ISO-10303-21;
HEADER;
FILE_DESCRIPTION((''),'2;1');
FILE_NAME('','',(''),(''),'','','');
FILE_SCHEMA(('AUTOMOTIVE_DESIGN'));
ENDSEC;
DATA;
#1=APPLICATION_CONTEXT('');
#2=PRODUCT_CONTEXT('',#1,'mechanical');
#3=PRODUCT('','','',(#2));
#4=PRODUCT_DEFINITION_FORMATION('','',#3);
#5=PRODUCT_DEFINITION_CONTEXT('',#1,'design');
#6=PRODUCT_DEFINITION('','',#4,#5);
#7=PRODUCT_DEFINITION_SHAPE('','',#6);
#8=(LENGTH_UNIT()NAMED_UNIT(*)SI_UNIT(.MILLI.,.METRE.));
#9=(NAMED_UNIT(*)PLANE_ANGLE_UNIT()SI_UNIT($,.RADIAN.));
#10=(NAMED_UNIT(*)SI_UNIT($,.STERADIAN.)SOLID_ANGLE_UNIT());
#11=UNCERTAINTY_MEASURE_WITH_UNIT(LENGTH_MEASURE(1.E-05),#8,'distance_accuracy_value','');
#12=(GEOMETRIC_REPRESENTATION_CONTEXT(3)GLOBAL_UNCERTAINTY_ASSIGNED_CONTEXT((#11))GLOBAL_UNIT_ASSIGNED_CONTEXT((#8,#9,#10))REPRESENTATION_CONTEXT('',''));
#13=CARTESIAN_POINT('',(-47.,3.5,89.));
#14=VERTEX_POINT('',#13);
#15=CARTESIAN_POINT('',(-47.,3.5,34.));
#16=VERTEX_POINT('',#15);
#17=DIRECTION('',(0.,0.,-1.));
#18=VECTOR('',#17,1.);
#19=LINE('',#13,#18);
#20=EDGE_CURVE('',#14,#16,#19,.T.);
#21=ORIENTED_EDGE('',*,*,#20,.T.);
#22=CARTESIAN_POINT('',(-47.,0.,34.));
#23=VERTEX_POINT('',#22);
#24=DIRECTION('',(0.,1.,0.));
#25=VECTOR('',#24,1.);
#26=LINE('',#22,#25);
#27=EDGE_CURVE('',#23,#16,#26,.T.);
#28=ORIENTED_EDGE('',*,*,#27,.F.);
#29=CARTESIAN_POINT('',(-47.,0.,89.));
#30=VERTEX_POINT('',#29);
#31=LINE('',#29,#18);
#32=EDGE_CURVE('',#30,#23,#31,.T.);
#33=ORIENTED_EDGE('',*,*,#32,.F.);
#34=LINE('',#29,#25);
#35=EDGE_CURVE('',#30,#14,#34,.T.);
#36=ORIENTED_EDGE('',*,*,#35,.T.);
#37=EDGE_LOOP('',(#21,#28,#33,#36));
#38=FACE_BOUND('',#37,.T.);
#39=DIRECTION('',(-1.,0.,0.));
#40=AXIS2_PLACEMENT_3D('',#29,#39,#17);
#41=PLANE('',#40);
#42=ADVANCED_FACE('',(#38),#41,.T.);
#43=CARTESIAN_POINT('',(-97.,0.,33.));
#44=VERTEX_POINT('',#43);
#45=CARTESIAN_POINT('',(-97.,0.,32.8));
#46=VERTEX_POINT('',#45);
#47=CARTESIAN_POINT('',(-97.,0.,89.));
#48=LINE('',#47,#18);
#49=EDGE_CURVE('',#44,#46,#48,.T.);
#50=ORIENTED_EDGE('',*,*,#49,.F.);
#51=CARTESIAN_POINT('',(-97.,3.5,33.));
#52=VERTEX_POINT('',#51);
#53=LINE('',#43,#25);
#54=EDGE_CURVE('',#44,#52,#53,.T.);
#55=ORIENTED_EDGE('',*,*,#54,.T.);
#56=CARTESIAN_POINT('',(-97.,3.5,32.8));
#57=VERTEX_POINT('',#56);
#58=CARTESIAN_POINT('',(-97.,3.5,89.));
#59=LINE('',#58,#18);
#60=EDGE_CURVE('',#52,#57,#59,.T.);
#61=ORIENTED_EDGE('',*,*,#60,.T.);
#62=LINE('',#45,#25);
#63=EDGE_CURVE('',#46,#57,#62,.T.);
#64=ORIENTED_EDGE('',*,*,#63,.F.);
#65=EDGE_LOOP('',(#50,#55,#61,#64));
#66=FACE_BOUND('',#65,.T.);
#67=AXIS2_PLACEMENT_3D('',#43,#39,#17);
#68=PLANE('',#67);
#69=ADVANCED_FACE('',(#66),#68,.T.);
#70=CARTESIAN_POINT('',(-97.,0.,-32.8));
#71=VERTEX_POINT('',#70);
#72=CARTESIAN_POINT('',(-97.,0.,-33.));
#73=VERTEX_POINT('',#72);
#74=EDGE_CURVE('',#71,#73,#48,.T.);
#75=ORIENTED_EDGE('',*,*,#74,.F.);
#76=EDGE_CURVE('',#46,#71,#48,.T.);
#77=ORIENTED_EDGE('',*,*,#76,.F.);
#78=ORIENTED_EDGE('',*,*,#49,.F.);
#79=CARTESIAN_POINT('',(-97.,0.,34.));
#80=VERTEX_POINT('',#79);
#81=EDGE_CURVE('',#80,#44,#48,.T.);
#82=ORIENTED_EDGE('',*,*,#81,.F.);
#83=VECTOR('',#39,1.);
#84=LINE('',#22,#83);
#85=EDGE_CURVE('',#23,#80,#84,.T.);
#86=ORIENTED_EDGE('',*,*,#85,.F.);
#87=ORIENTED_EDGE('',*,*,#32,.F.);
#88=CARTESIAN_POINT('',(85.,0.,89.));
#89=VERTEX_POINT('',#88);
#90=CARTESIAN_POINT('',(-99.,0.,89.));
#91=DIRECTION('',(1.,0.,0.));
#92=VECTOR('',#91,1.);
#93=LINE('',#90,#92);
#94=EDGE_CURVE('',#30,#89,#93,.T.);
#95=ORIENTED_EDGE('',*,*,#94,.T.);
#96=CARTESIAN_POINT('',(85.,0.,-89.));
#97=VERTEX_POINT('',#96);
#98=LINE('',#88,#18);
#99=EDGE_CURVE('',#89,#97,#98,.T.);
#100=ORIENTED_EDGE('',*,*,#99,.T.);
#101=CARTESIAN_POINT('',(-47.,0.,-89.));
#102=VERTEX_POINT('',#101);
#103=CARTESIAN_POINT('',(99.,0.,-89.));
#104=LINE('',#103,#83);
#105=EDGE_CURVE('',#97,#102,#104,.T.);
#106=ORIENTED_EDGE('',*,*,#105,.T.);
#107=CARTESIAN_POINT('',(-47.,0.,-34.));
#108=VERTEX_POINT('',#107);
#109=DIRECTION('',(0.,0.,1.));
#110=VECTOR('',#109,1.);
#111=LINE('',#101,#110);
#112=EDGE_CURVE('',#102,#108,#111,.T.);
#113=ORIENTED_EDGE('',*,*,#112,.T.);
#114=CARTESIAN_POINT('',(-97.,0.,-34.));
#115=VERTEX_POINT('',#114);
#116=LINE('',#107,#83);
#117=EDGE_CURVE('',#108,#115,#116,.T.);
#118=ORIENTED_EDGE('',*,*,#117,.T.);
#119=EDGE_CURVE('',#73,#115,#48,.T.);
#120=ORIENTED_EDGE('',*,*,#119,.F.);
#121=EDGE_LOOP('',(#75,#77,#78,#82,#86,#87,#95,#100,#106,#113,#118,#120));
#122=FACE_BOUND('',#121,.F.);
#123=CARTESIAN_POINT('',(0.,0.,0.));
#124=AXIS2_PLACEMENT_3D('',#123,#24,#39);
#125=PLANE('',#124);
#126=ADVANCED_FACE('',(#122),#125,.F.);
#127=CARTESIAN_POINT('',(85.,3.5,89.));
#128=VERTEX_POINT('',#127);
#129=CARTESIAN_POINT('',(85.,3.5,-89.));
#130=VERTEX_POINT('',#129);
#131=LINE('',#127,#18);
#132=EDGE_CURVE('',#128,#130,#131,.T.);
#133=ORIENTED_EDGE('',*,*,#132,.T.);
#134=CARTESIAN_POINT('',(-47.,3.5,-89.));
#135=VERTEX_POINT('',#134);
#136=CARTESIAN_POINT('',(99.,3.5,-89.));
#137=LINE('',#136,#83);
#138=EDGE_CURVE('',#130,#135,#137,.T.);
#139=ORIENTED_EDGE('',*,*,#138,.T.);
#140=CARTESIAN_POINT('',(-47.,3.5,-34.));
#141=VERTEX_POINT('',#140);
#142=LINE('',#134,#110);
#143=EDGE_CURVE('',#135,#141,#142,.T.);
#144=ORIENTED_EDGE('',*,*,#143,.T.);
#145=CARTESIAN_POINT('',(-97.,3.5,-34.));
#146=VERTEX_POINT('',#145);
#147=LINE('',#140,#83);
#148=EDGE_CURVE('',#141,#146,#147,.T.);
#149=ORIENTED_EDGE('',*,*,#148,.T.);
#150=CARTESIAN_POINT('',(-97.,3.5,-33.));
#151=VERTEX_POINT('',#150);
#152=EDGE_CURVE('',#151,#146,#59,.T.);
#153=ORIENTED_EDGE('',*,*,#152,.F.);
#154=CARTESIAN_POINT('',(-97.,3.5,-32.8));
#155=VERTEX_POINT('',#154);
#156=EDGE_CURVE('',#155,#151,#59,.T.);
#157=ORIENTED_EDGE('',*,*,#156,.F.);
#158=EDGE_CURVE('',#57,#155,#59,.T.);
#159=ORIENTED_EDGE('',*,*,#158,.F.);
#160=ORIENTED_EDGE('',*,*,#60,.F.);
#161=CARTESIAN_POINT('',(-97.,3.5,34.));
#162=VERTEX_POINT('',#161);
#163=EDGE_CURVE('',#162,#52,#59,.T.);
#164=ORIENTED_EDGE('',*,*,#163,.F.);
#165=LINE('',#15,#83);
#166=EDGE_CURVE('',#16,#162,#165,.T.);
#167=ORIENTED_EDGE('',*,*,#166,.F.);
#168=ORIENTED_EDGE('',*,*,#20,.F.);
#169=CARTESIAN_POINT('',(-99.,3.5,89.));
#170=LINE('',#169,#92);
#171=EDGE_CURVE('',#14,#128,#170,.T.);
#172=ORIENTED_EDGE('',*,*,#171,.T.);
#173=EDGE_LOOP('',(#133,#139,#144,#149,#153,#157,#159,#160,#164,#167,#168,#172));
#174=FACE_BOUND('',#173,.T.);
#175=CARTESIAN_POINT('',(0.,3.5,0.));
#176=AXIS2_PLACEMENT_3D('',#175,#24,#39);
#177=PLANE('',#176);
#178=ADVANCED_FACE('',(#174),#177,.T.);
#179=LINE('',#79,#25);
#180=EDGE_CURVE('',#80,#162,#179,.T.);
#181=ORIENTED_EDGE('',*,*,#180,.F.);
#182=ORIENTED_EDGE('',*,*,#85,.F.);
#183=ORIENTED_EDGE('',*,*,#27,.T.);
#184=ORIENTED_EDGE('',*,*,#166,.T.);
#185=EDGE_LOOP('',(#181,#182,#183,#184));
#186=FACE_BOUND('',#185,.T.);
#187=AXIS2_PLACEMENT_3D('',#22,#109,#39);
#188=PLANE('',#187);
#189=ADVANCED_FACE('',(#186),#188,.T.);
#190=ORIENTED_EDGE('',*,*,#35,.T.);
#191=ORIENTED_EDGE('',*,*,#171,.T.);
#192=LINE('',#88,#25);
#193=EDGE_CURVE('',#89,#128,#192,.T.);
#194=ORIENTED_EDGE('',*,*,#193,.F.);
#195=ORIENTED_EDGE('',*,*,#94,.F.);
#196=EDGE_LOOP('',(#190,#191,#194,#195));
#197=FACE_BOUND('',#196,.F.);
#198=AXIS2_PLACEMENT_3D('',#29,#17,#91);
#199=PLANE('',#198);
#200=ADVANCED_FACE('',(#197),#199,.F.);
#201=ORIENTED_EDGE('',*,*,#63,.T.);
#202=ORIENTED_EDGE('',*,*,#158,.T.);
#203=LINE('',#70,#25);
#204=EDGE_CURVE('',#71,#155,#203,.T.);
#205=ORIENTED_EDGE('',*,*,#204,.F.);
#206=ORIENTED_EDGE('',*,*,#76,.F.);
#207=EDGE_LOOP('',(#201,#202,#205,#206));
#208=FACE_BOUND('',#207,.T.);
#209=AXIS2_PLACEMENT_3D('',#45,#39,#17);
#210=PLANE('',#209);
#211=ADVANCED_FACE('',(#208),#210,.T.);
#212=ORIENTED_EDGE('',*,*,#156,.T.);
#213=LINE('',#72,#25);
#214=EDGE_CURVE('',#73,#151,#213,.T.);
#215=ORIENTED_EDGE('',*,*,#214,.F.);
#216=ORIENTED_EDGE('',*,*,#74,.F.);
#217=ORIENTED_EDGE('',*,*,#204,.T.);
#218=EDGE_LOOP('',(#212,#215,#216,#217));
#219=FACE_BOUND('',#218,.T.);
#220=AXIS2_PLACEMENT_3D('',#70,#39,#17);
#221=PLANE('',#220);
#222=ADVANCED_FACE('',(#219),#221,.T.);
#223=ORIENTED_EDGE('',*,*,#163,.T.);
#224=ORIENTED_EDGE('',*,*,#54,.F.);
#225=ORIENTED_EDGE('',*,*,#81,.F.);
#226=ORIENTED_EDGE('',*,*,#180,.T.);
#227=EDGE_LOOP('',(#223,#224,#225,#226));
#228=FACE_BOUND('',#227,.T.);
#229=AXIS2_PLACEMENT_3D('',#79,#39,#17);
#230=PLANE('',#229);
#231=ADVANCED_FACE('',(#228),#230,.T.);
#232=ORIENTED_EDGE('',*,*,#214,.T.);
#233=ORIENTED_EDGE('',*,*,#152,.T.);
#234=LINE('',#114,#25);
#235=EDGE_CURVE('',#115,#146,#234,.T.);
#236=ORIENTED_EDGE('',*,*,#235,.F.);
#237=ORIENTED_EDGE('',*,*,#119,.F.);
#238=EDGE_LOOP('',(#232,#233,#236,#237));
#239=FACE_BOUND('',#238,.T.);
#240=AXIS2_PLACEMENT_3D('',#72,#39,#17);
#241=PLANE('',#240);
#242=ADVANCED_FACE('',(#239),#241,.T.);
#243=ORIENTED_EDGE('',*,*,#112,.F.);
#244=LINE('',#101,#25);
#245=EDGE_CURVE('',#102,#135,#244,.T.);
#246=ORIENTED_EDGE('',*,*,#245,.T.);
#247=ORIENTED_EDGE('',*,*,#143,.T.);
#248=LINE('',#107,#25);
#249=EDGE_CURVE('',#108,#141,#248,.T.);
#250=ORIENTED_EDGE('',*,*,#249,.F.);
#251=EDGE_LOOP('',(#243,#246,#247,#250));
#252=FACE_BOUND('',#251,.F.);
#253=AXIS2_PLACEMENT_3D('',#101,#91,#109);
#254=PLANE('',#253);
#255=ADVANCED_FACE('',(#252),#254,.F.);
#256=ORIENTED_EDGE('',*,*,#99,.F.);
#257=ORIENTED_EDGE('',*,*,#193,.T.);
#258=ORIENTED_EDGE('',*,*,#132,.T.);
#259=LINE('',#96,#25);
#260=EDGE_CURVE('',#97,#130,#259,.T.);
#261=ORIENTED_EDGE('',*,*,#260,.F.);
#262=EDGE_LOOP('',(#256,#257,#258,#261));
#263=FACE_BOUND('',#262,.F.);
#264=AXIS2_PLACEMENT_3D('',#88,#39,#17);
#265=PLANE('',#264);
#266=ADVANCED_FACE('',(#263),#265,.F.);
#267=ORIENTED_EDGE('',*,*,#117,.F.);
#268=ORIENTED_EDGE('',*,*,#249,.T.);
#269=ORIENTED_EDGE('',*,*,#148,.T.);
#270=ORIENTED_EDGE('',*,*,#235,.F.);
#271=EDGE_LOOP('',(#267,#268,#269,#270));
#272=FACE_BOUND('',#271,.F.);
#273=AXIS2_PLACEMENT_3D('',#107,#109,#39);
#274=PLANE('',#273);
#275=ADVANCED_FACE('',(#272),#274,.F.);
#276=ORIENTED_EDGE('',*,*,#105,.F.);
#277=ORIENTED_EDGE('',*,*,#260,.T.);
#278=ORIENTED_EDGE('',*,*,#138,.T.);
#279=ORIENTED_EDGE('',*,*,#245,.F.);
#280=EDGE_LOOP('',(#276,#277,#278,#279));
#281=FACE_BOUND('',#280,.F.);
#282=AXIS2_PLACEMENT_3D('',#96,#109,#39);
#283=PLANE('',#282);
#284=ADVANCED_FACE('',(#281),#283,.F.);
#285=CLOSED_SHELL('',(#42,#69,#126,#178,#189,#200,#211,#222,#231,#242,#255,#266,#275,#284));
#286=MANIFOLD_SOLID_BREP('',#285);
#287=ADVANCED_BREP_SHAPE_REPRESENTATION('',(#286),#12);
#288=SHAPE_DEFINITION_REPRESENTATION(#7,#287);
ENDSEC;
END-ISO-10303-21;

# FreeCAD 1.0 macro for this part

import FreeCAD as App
import Part
import Sketcher

V = App.Vector
Q = App.Units.Quantity

doc = App.newDocument("Part")
body = doc.addObject("PartDesign::Body", "Body")

sketch1 = body.newObject("Sketcher::SketchObject", "Sketch")
sketch1.AttachmentSupport = (doc.getObject("XZ_Plane"), [""])
sketch1.MapMode = "FlatFace"
sketch1.addGeometry(Part.LineSegment(V(-47, 34, 0), V(-47, 89, 0)), False)
sketch1.addGeometry(Part.LineSegment(V(-47, 89, 0), V(85, 89, 0)), False)
sketch1.addGeometry(Part.LineSegment(V(85, 89, 0), V(85, -89, 0)), False)
sketch1.addGeometry(Part.LineSegment(V(85, -89, 0), V(-47, -89, 0)), False)
sketch1.addGeometry(Part.LineSegment(V(-47, -89, 0), V(-47, -34, 0)), False)
sketch1.addGeometry(Part.LineSegment(V(-47, -34, 0), V(-97, -34, 0)), False)
sketch1.addGeometry(Part.LineSegment(V(-97, -34, 0), V(-97, 34, 0)), False)
sketch1.addGeometry(Part.LineSegment(V(-97, 34, 0), V(-47, 34, 0)), False)
sketch1.addConstraint(Sketcher.Constraint("Coincident", 0, 2, 1, 1))
sketch1.addConstraint(Sketcher.Constraint("Coincident", 1, 2, 2, 1))
sketch1.addConstraint(Sketcher.Constraint("Coincident", 2, 2, 3, 1))
sketch1.addConstraint(Sketcher.Constraint("Coincident", 3, 2, 4, 1))
sketch1.addConstraint(Sketcher.Constraint("Coincident", 4, 2, 5, 1))
sketch1.addConstraint(Sketcher.Constraint("Coincident", 5, 2, 6, 1))
sketch1.addConstraint(Sketcher.Constraint("Coincident", 6, 2, 7, 1))
sketch1.addConstraint(Sketcher.Constraint("Coincident", 7, 2, 0, 1))
sketch1.addConstraint(Sketcher.Constraint("Vertical", 0))
sketch1.addConstraint(Sketcher.Constraint("Horizontal", 1))
sketch1.addConstraint(Sketcher.Constraint("Vertical", 2))
sketch1.addConstraint(Sketcher.Constraint("Horizontal", 3))
sketch1.addConstraint(Sketcher.Constraint("Vertical", 4))
sketch1.addConstraint(Sketcher.Constraint("Horizontal", 5))
sketch1.addConstraint(Sketcher.Constraint("Vertical", 6))
sketch1.addConstraint(Sketcher.Constraint("Horizontal", 7))
sketch1.addConstraint(Sketcher.Constraint("Symmetric", 0, 2, 3, 2, -1))
sketch1.addConstraint(Sketcher.Constraint("Equal", 0, 4))
sketch1.addConstraint(Sketcher.Constraint("DistanceX", 5, 2, 5, 1, Q("50 mm")))
sketch1.addConstraint(Sketcher.Constraint("DistanceY", 0, 1, 0, 2, Q("55 mm")))
sketch1.addConstraint(Sketcher.Constraint("DistanceY", 2, 2, 2, 1, Q("178 mm")))
sketch1.addConstraint(Sketcher.Constraint("DistanceX", 1, 1, 1, 2, Q("132 mm")))
sketch1.addConstraint(Sketcher.Constraint("DistanceX", 0, 2, -1, 1, Q("47 mm")))
pad1 = body.newObject("PartDesign::Pad", "Pad")
pad1.Profile = sketch1
pad1.Length = 3.5
pad1.Reversed = True

doc.recompute()
